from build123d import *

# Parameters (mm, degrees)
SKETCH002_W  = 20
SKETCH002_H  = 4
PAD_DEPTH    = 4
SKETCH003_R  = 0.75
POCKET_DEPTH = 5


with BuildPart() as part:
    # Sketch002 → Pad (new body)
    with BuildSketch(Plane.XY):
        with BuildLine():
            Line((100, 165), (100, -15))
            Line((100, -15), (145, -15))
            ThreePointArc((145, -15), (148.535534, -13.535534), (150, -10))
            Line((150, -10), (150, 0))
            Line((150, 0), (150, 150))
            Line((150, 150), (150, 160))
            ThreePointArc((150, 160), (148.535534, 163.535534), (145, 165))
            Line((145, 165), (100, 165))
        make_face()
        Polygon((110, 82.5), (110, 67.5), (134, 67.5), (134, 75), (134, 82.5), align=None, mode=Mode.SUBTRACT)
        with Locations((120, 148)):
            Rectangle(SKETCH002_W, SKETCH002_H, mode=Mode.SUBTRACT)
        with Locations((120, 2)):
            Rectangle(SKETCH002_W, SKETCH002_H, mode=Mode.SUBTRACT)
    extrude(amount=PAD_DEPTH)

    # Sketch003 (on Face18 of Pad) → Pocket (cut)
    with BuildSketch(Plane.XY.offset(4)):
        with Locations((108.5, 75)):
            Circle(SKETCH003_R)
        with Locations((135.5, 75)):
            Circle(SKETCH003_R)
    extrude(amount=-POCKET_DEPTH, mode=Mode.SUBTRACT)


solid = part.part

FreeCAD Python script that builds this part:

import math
import FreeCAD as App
import Part
import Sketcher
Q = App.Units.Quantity


def add_polygon(sketch, points):
    """Adds a closed chain of lines whose ends are joined by coincident constraints."""
    first, n = sketch.GeometryCount, len(points)
    for a, b in zip(points, points[1:] + points[:1]):
        sketch.addGeometry(Part.LineSegment(App.Vector(*a, 0), App.Vector(*b, 0)), False)
    for i in range(n):
        sketch.addConstraint(Sketcher.Constraint("Coincident", first + i, 2, first + (i + 1) % n, 1))

doc = App.newDocument("Part")
params = doc.addObject("Spreadsheet::Sheet", "Params")
for row, (alias, value) in enumerate([
    ("sketch1_radius", "5 mm"),
    ("sketch1_width", "45 mm"),
    ("sketch1_width2", "20 mm"),
    ("sketch1_width3", "24 mm"),
    ("sketch1_height", "180 mm"),
    ("pad1_length", "4 mm"),
    ("sketch2_diameter", "1.5 mm"),
    ("pocket1_length", "5 mm"),
], start=1):
    params.set(f"A{row}", alias)
    params.set(f"B{row}", "=" + value)
    params.setAlias(f"B{row}", alias)

body = doc.addObject("PartDesign::Body", "Body")

sketch1 = body.newObject("Sketcher::SketchObject", "Sketch")
sketch1.AttachmentSupport = (doc.getObject("XY_Plane"), [""])
sketch1.MapMode = "FlatFace"
sketch1.addGeometry(Part.LineSegment(App.Vector(100, 165, 0), App.Vector(100, -15, 0)), False)
sketch1.addGeometry(Part.LineSegment(App.Vector(100, -15, 0), App.Vector(145, -15, 0)), False)
sketch1.addGeometry(Part.ArcOfCircle(Part.Circle(App.Vector(145, -10, 0), App.Vector(0, 0, 1), 5), math.radians(-90), math.radians(0)), False)
sketch1.addGeometry(Part.LineSegment(App.Vector(150, -10, 0), App.Vector(150, 160, 0)), False)
sketch1.addGeometry(Part.ArcOfCircle(Part.Circle(App.Vector(145, 160, 0), App.Vector(0, 0, 1), 5), math.radians(0), math.radians(90)), False)
sketch1.addGeometry(Part.LineSegment(App.Vector(145, 165, 0), App.Vector(100, 165, 0)), False)
add_polygon(sketch1, [(130, 0), (110, 0), (110, 4), (130, 4)])
add_polygon(sketch1, [(130, 146), (110, 146), (110, 150), (130, 150)])
add_polygon(sketch1, [(110, 67.5), (110, 82.5), (134, 82.5), (134, 67.5)])
sketch1.addConstraint([
    Sketcher.Constraint("Coincident", 0, 2, 1, 1),
    Sketcher.Constraint("Tangent", 1, 2, 2, 1),
    Sketcher.Constraint("Tangent", 2, 2, 3, 1),
    Sketcher.Constraint("Tangent", 3, 2, 4, 1),
    Sketcher.Constraint("Tangent", 4, 2, 5, 1),
    Sketcher.Constraint("Coincident", 5, 2, 0, 1),
    Sketcher.Constraint("Vertical", 0),
    Sketcher.Constraint("Horizontal", 1),
    Sketcher.Constraint("Vertical", 3),
    Sketcher.Constraint("Horizontal", 5),
    Sketcher.Constraint("Horizontal", 6),
    Sketcher.Constraint("Vertical", 7),
    Sketcher.Constraint("Horizontal", 8),
    Sketcher.Constraint("Vertical", 9),
    Sketcher.Constraint("Horizontal", 10),
    Sketcher.Constraint("Vertical", 11),
    Sketcher.Constraint("Horizontal", 12),
    Sketcher.Constraint("Vertical", 13),
    Sketcher.Constraint("Vertical", 14),
    Sketcher.Constraint("Horizontal", 15),
    Sketcher.Constraint("Vertical", 16),
    Sketcher.Constraint("Horizontal", 17),
    Sketcher.Constraint("Equal", 2, 4),
    Sketcher.Constraint("PointOnObject", 6, 2, -1),
    Sketcher.Constraint("Vertical", 7, 2, 10, 2),
    Sketcher.Constraint("Vertical", 9, 2, 12, 2),
    Sketcher.Constraint("Vertical", 11, 2, 14, 2),
    Sketcher.Constraint("Equal", 9, 11),
    Sketcher.Constraint("Radius", 2, Q("5 mm")),
    Sketcher.Constraint("DistanceX", 1, 1, 1, 2, Q("45 mm")),
    Sketcher.Constraint("DistanceX", 6, 2, 6, 1, Q("20 mm")),
    Sketcher.Constraint("DistanceX", 15, 1, 15, 2, Q("24 mm")),
    Sketcher.Constraint("DistanceY", 0, 2, 0, 1, Q("180 mm")),
    Sketcher.Constraint("DistanceY", 7, 1, 7, 2, Q("4 mm")),
    Sketcher.Constraint("DistanceY", 14, 1, 14, 2, Q("15 mm")),
    Sketcher.Constraint("DistanceX", -1, 1, 2, 3, Q("145 mm")),
    Sketcher.Constraint("DistanceY", 2, 3, -1, 1, Q("10 mm")),
    Sketcher.Constraint("DistanceX", -1, 1, 6, 2, Q("110 mm")),
    Sketcher.Constraint("DistanceY", -1, 1, 10, 2, Q("146 mm")),
    Sketcher.Constraint("DistanceY", -1, 1, 14, 2, Q("82.5 mm")),
])
sketch1.setExpression("Constraints[40]", "Params.sketch1_radius")
sketch1.setExpression("Constraints[41]", "Params.sketch1_width")
sketch1.setExpression("Constraints[42]", "Params.sketch1_width2")
sketch1.setExpression("Constraints[43]", "Params.sketch1_width3")
sketch1.setExpression("Constraints[44]", "Params.sketch1_height")
pad1 = body.newObject("PartDesign::Pad", "Pad")
pad1.Profile = sketch1
pad1.setExpression("Length", "Params.pad1_length")

sketch2 = body.newObject("Sketcher::SketchObject", "Sketch001")
sketch2.AttachmentSupport = (doc.getObject("XY_Plane"), [""])
sketch2.MapMode = "FlatFace"
sketch2.AttachmentOffset = App.Placement(App.Vector(0, 0, 4), App.Rotation())
sketch2.addGeometry([
    Part.Circle(App.Vector(108.5, 75, 0), App.Vector(0, 0, 1), 0.8),
    Part.Circle(App.Vector(135.5, 75, 0), App.Vector(0, 0, 1), 0.8),
], False)
sketch2.addConstraint([
    Sketcher.Constraint("Equal", 0, 1),
    Sketcher.Constraint("Horizontal", 0, 3, 1, 3),
    Sketcher.Constraint("Diameter", 0, Q("1.5 mm")),
    Sketcher.Constraint("DistanceY", -1, 1, 0, 3, Q("75 mm")),
    Sketcher.Constraint("DistanceX", 0, 3, 1, 3, Q("27 mm")),
    Sketcher.Constraint("DistanceX", -1, 1, 0, 3, Q("108.5 mm")),
])
sketch2.setExpression("Constraints[2]", "Params.sketch2_diameter")
pocket1 = body.newObject("PartDesign::Pocket", "Pocket")
pocket1.Profile = sketch2
pocket1.setExpression("Length", "Params.pocket1_length")

doc.recompute()
